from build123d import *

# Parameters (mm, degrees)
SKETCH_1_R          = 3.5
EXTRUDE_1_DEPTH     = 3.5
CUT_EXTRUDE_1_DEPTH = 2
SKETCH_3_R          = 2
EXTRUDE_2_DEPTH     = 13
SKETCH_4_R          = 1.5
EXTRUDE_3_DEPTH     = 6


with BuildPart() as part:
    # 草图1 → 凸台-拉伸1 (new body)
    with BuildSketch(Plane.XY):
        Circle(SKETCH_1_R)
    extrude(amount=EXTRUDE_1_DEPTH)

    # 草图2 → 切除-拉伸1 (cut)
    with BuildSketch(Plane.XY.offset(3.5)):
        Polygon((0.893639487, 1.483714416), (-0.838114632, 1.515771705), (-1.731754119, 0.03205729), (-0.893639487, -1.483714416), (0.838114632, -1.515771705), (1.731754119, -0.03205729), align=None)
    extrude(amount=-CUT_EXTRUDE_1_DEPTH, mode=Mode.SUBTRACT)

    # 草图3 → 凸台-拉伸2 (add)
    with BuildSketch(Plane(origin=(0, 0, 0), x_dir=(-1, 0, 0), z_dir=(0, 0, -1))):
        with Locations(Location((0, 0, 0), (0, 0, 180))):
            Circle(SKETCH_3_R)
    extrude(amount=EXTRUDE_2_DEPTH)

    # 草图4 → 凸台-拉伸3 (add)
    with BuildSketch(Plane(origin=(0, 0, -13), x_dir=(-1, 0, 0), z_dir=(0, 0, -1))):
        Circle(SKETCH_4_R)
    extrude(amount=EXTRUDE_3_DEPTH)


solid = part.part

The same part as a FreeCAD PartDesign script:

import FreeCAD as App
import Part
import Sketcher
from FreeCAD import Vector
Q = App.Units.Quantity


def add_polygon(sketch, points):
    """Adds a closed chain of lines whose ends are joined by coincident constraints."""
    first, n = sketch.GeometryCount, len(points)
    for a, b in zip(points, points[1:] + points[:1]):
        sketch.addGeometry(Part.LineSegment(App.Vector(*a, 0), App.Vector(*b, 0)), False)
    for i in range(n):
        sketch.addConstraint(Sketcher.Constraint("Coincident", first + i, 2, first + (i + 1) % n, 1))

doc = App.newDocument("Part")
body = doc.addObject("PartDesign::Body", "Body")

sketch1 = body.newObject("Sketcher::SketchObject", "Sketch")
sketch1.AttachmentSupport = (doc.getObject("XY_Plane"), [""])
sketch1.MapMode = "FlatFace"
sketch1.addGeometry(Part.Circle(Vector(0, 0, 0), Vector(0, 0, 1), 3.5), False)
sketch1.addConstraint(Sketcher.Constraint("Coincident", 0, 3, -1, 1))
sketch1.addConstraint(Sketcher.Constraint("Diameter", 0, Q("7 mm")))
pad1 = body.newObject("PartDesign::Pad", "Pad")
pad1.Profile = sketch1
pad1.Length = 3.5

sketch2 = body.newObject("Sketcher::SketchObject", "Sketch001")
sketch2.AttachmentSupport = (doc.getObject("XY_Plane"), [""])
sketch2.MapMode = "FlatFace"
sketch2.AttachmentOffset = App.Placement(Vector(0, 0, 3.5), App.Rotation())
add_polygon(sketch2, [(0.893639, 1.483714), (-0.838115, 1.515772), (-1.731754, 0.032057), (-0.893639, -1.483714), (0.838115, -1.515772), (1.731754, -0.032057)])
sketch2.addConstraint(Sketcher.Constraint("Symmetric", 0, 2, 3, 2, -1, 1))
sketch2.addConstraint(Sketcher.Constraint("Symmetric", 1, 2, 4, 2, -1, 1))
sketch2.addConstraint(Sketcher.Constraint("Symmetric", 2, 2, 5, 2, -1, 1))
sketch2.addConstraint(Sketcher.Constraint("Equal", 0, 1))
sketch2.addConstraint(Sketcher.Constraint("Equal", 1, 2))
sketch2.addConstraint(Sketcher.Constraint("Distance", 0, Q("1.732051 mm")))
sketch2.addConstraint(Sketcher.Constraint("DistanceY", -1, 1, 0, 2, Q("1.515772 mm")))
sketch2.addConstraint(Sketcher.Constraint("DistanceX", 2, 2, -1, 1, Q("0.893639 mm")))
sketch2.addConstraint(Sketcher.Constraint("DistanceX", 1, 2, 0, 2, Q("0.893639 mm")))
pocket1 = body.newObject("PartDesign::Pocket", "Pocket")
pocket1.Profile = sketch2
pocket1.Length = 2

sketch3 = body.newObject("Sketcher::SketchObject", "Sketch002")
sketch3.AttachmentSupport = (doc.getObject("XY_Plane"), [""])
sketch3.MapMode = "FlatFace"
sketch3.addGeometry(Part.Circle(Vector(0, 0, 0), Vector(0, 0, 1), 2), False)
sketch3.addConstraint(Sketcher.Constraint("Coincident", 0, 3, -1, 1))
sketch3.addConstraint(Sketcher.Constraint("Diameter", 0, Q("4 mm")))
pad2 = body.newObject("PartDesign::Pad", "Pad001")
pad2.Profile = sketch3
pad2.Length = 13
pad2.Reversed = True

sketch4 = body.newObject("Sketcher::SketchObject", "Sketch003")
sketch4.AttachmentSupport = (doc.getObject("XY_Plane"), [""])
sketch4.MapMode = "FlatFace"
sketch4.AttachmentOffset = App.Placement(Vector(0, 0, -13), App.Rotation())
sketch4.addGeometry(Part.Circle(Vector(0, 0, 0), Vector(0, 0, 1), 1.5), False)
sketch4.addConstraint(Sketcher.Constraint("Coincident", 0, 3, -1, 1))
sketch4.addConstraint(Sketcher.Constraint("Diameter", 0, Q("3 mm")))
pad3 = body.newObject("PartDesign::Pad", "Pad002")
pad3.Profile = sketch4
pad3.Length = 6
pad3.Reversed = True

doc.recompute()
